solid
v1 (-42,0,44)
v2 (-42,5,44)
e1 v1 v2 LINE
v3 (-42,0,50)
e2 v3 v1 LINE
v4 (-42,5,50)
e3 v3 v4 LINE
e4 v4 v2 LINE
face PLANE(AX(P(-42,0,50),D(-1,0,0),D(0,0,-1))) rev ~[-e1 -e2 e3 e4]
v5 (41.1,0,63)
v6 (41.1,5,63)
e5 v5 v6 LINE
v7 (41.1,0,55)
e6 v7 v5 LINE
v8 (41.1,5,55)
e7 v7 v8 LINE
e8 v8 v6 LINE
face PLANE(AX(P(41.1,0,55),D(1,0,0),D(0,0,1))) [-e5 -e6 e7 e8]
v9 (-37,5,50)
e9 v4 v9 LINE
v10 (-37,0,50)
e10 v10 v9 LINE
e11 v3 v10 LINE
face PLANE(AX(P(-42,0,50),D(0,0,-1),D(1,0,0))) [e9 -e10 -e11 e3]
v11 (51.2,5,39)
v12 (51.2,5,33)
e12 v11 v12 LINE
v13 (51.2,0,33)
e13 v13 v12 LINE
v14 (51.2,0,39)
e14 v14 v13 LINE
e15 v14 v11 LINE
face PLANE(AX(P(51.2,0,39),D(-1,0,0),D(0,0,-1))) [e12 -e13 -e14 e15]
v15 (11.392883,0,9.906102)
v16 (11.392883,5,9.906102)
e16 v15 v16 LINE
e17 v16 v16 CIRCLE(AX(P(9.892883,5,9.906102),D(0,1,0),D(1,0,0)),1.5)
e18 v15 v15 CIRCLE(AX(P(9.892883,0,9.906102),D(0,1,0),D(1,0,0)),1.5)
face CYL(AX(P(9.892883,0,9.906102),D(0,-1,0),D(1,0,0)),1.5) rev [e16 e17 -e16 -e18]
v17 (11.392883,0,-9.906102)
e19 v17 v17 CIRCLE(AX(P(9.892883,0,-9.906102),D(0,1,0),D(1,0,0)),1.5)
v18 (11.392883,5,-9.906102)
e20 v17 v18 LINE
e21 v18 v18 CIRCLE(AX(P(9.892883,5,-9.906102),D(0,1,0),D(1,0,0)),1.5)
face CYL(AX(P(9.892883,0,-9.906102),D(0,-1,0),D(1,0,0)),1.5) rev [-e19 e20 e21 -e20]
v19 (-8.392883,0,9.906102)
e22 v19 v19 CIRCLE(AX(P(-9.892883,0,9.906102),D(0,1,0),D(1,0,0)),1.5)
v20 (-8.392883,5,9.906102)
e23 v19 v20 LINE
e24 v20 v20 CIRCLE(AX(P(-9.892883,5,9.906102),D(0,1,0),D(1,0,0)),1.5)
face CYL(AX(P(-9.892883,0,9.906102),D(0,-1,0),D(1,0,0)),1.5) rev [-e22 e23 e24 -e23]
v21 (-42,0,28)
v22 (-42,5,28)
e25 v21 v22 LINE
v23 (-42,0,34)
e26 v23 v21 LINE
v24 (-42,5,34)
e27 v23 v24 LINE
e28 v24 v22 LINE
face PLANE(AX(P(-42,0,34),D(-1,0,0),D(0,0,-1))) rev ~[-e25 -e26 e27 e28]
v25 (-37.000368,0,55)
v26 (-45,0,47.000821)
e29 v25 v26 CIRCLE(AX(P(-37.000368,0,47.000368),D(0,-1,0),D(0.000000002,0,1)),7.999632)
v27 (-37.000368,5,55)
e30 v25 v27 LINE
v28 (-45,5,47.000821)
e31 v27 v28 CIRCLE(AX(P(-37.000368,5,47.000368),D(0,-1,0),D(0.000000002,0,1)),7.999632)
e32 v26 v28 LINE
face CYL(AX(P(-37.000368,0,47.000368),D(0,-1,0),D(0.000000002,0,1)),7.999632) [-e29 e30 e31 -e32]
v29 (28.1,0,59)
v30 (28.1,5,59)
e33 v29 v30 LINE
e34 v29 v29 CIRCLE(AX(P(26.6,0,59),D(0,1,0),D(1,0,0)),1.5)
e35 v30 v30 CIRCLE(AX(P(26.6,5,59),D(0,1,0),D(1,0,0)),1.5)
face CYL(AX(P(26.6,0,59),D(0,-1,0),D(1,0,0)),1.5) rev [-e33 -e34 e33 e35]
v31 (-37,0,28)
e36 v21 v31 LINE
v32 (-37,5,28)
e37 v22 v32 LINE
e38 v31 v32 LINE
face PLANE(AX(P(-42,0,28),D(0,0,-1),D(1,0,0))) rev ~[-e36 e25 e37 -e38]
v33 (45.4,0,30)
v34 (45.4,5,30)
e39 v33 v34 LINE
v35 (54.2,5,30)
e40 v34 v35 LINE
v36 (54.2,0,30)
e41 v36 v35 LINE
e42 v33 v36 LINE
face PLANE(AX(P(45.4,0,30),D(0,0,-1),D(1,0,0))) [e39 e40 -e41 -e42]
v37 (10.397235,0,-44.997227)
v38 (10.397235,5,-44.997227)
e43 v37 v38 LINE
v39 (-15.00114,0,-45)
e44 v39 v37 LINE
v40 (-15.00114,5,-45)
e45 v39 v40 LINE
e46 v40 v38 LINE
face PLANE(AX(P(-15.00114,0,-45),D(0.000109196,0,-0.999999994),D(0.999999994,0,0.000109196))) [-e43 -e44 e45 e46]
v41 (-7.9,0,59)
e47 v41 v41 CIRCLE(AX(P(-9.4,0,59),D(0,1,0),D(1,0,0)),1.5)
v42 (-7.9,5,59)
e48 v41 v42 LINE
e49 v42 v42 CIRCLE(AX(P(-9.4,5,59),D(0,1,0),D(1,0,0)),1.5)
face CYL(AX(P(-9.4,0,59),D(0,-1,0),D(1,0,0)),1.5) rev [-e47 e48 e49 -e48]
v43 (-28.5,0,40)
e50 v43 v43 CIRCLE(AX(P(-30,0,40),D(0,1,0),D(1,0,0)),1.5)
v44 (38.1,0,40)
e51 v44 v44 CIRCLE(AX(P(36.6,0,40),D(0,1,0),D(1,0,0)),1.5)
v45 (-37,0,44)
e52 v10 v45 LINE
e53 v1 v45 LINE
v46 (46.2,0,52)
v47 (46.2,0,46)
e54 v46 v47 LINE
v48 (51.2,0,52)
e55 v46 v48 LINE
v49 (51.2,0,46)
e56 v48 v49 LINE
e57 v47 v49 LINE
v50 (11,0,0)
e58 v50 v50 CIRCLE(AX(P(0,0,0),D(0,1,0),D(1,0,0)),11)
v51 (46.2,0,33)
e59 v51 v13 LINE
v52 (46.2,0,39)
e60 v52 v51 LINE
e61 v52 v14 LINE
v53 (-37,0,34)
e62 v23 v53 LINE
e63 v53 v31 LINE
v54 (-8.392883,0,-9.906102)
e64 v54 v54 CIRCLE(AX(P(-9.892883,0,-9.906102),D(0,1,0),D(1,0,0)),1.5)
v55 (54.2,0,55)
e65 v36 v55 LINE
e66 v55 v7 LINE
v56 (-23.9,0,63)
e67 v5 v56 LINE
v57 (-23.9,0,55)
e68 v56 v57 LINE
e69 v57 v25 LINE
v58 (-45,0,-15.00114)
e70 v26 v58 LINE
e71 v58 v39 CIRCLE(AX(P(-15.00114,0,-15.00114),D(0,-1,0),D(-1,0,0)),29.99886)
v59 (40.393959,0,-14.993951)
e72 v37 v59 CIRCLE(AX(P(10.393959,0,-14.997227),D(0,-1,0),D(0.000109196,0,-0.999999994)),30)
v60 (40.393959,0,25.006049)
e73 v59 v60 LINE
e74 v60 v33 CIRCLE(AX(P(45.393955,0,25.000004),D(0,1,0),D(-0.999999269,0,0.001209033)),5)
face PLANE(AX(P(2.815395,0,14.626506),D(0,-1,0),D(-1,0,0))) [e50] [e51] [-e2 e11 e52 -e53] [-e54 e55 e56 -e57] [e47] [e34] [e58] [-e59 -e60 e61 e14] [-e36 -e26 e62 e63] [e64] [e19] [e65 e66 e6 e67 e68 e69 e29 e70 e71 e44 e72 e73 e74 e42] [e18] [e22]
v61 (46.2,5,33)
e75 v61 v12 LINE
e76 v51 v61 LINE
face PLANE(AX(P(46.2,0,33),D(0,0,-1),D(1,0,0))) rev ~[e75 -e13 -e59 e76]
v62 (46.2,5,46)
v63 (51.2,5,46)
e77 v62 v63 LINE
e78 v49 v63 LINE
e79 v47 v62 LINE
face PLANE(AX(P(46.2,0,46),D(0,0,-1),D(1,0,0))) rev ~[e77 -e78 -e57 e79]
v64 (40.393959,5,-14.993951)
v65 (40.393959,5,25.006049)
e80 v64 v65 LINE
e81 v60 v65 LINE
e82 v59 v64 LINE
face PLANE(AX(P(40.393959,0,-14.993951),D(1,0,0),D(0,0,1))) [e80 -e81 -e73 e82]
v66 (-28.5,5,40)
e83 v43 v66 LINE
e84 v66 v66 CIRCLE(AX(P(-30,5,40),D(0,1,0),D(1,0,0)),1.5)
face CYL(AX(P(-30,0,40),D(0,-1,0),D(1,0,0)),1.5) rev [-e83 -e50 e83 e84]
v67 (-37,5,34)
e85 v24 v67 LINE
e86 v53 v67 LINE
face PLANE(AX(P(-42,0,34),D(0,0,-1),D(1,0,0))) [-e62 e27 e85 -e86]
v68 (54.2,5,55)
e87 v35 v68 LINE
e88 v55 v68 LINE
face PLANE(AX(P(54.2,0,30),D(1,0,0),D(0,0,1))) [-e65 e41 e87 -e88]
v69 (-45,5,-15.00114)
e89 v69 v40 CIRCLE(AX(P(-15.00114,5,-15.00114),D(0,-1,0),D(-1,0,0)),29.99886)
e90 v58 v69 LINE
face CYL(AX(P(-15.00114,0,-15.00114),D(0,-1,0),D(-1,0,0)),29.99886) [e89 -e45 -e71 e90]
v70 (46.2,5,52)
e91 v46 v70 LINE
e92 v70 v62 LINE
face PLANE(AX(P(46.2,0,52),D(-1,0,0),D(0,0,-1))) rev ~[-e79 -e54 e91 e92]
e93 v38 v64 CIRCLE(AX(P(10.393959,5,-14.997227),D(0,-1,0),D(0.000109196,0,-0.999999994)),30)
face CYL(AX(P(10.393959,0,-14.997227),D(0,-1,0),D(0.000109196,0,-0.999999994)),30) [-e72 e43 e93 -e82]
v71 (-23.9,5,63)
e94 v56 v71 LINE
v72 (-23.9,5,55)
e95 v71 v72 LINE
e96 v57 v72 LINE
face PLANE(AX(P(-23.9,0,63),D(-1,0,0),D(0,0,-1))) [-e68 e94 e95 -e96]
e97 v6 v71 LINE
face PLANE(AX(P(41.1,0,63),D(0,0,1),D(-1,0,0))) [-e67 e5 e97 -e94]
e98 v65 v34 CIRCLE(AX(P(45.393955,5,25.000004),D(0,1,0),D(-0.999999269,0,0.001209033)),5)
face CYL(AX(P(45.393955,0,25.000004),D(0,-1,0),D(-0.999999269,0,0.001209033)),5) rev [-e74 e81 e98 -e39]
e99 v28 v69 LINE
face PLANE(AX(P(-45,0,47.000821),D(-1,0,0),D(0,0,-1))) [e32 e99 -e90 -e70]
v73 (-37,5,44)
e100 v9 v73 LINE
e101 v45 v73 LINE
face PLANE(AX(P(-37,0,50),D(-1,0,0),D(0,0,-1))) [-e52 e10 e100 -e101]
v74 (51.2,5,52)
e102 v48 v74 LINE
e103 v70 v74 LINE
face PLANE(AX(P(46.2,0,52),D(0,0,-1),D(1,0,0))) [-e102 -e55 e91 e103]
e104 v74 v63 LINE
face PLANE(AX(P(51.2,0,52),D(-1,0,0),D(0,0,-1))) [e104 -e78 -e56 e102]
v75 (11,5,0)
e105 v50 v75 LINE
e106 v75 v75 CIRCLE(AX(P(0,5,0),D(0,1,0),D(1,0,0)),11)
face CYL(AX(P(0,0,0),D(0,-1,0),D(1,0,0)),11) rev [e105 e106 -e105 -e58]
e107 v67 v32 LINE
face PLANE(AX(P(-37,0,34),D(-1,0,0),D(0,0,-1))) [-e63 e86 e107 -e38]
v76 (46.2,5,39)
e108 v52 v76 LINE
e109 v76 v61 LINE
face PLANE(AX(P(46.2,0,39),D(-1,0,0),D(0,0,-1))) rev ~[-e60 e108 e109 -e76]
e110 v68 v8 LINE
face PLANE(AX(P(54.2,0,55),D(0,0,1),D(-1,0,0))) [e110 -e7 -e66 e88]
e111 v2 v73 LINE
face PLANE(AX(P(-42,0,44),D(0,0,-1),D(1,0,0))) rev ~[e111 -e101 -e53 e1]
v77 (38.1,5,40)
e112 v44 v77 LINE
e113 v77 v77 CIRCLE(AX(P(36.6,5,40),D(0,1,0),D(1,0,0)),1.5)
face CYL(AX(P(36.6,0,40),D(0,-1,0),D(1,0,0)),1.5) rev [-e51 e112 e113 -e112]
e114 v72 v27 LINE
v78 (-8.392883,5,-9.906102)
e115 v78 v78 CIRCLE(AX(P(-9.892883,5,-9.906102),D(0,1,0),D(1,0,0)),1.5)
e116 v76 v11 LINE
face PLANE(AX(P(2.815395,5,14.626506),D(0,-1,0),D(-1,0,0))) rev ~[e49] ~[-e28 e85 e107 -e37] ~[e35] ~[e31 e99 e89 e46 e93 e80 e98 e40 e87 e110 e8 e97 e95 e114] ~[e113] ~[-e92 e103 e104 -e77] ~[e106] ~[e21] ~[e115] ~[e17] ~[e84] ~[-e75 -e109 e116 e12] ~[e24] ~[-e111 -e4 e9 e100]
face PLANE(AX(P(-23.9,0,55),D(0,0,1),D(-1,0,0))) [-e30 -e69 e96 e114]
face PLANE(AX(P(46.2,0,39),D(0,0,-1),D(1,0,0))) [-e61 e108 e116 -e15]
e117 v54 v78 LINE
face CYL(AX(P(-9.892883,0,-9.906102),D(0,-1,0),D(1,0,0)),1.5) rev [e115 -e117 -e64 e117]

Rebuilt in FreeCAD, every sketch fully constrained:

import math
import FreeCAD as App
import Part
import Sketcher

doc = App.newDocument("Part")
params = doc.addObject("Spreadsheet::Sheet", "Params")
for row, (alias, value) in enumerate([
    ("sketch1_diameter", "3 mm"),
    ("sketch1_diameter2", "22 mm"),
    ("sketch1_radius", "30 mm"),
    ("sketch1_radius2", "5 mm"),
    ("sketch1_width", "65 mm"),
    ("pad1_length", "5 mm"),
], start=1):
    params.set(f"A{row}", alias)
    params.set(f"B{row}", "=" + value)
    params.setAlias(f"B{row}", alias)

body = doc.addObject("PartDesign::Body", "Body")

sketch1 = body.newObject("Sketcher::SketchObject", "Sketch")
sketch1.AttachmentSupport = (doc.getObject("XZ_Plane"), [""])
sketch1.MapMode = "FlatFace"
sketch1.addGeometry([
    Part.LineSegment(App.Vector(40.4, 25, 0), App.Vector(40.4, -15, 0)),
    Part.ArcOfCircle(Part.Circle(App.Vector(10.4, -15, 0), App.Vector(0, 0, 1), 30), math.radians(-90), math.radians(0)),
    Part.LineSegment(App.Vector(10.4, -45, 0), App.Vector(-15, -45, 0)),
    Part.ArcOfCircle(Part.Circle(App.Vector(-15, -15, 0), App.Vector(0, 0, 1), 30), math.radians(180), math.radians(270)),
    Part.LineSegment(App.Vector(-45, -15, 0), App.Vector(-45, 47, 0)),
    Part.ArcOfCircle(Part.Circle(App.Vector(-37, 47, 0), App.Vector(0, 0, 1), 8), math.radians(90), math.radians(180)),
    Part.LineSegment(App.Vector(-37, 55, 0), App.Vector(-23.9, 55, 0)),
    Part.LineSegment(App.Vector(-23.9, 55, 0), App.Vector(-23.9, 63, 0)),
    Part.LineSegment(App.Vector(-23.9, 63, 0), App.Vector(41.1, 63, 0)),
    Part.LineSegment(App.Vector(41.1, 63, 0), App.Vector(41.1, 55, 0)),
    Part.LineSegment(App.Vector(41.1, 55, 0), App.Vector(54.2, 55, 0)),
    Part.LineSegment(App.Vector(54.2, 55, 0), App.Vector(54.2, 30, 0)),
    Part.LineSegment(App.Vector(54.2, 30, 0), App.Vector(45.4, 30, 0)),
    Part.ArcOfCircle(Part.Circle(App.Vector(45.4, 25, 0), App.Vector(0, 0, 1), 5), math.radians(90), math.radians(180)),
    Part.LineSegment(App.Vector(46.2, 52, 0), App.Vector(46.2, 46, 0)),
    Part.LineSegment(App.Vector(46.2, 46, 0), App.Vector(51.2, 46, 0)),
    Part.LineSegment(App.Vector(51.2, 46, 0), App.Vector(51.2, 52, 0)),
    Part.LineSegment(App.Vector(51.2, 52, 0), App.Vector(46.2, 52, 0)),
    Part.Circle(App.Vector(26.6, 59, 0), App.Vector(0, 0, 1), 1.5),
    Part.LineSegment(App.Vector(46.2, 39, 0), App.Vector(46.2, 33, 0)),
    Part.LineSegment(App.Vector(46.2, 33, 0), App.Vector(51.2, 33, 0)),
    Part.LineSegment(App.Vector(51.2, 33, 0), App.Vector(51.2, 39, 0)),
    Part.LineSegment(App.Vector(51.2, 39, 0), App.Vector(46.2, 39, 0)),
    Part.Circle(App.Vector(36.6, 40, 0), App.Vector(0, 0, 1), 1.5),
    Part.Circle(App.Vector(-9.4, 59, 0), App.Vector(0, 0, 1), 1.5),
    Part.LineSegment(App.Vector(-42, 50, 0), App.Vector(-42, 44, 0)),
    Part.LineSegment(App.Vector(-42, 44, 0), App.Vector(-37, 44, 0)),
    Part.LineSegment(App.Vector(-37, 44, 0), App.Vector(-37, 50, 0)),
    Part.LineSegment(App.Vector(-37, 50, 0), App.Vector(-42, 50, 0)),
    Part.Circle(App.Vector(-30, 40, 0), App.Vector(0, 0, 1), 1.5),
    Part.LineSegment(App.Vector(-42, 34, 0), App.Vector(-42, 28, 0)),
    Part.LineSegment(App.Vector(-42, 28, 0), App.Vector(-37, 28, 0)),
    Part.LineSegment(App.Vector(-37, 28, 0), App.Vector(-37, 34, 0)),
    Part.LineSegment(App.Vector(-37, 34, 0), App.Vector(-42, 34, 0)),
    Part.Circle(App.Vector(9.9, 9.9, 0), App.Vector(0, 0, 1), 1.5),
    Part.Circle(App.Vector(9.9, -9.9, 0), App.Vector(0, 0, 1), 1.5),
    Part.Circle(App.Vector(-9.9, 9.9, 0), App.Vector(0, 0, 1), 1.5),
    Part.Circle(App.Vector(0, 0, 0), App.Vector(0, 0, 1), 11),
    Part.Circle(App.Vector(-9.9, -9.9, 0), App.Vector(0, 0, 1), 1.5),
], False)
sketch1.addConstraint([
    Sketcher.Constraint("Coincident", 0, 2, 1, 2),
    Sketcher.Constraint("Tangent", 1, 1, 2, 1),
    Sketcher.Constraint("Coincident", 2, 2, 3, 2),
    Sketcher.Constraint("Tangent", 3, 1, 4, 1),
    Sketcher.Constraint("Coincident", 4, 2, 5, 2),
    Sketcher.Constraint("Tangent", 5, 1, 6, 1),
    Sketcher.Constraint("Coincident", 6, 2, 7, 1),
    Sketcher.Constraint("Coincident", 7, 2, 8, 1),
    Sketcher.Constraint("Coincident", 8, 2, 9, 1),
    Sketcher.Constraint("Coincident", 9, 2, 10, 1),
    Sketcher.Constraint("Coincident", 10, 2, 11, 1),
    Sketcher.Constraint("Coincident", 11, 2, 12, 1),
    Sketcher.Constraint("Coincident", 12, 2, 13, 1),
    Sketcher.Constraint("Coincident", 13, 2, 0, 1),
    Sketcher.Constraint("Coincident", 14, 2, 15, 1),
    Sketcher.Constraint("Coincident", 15, 2, 16, 1),
    Sketcher.Constraint("Coincident", 16, 2, 17, 1),
    Sketcher.Constraint("Coincident", 17, 2, 14, 1),
    Sketcher.Constraint("Coincident", 19, 2, 20, 1),
    Sketcher.Constraint("Coincident", 20, 2, 21, 1),
    Sketcher.Constraint("Coincident", 21, 2, 22, 1),
    Sketcher.Constraint("Coincident", 22, 2, 19, 1),
    Sketcher.Constraint("Coincident", 25, 2, 26, 1),
    Sketcher.Constraint("Coincident", 26, 2, 27, 1),
    Sketcher.Constraint("Coincident", 27, 2, 28, 1),
    Sketcher.Constraint("Coincident", 28, 2, 25, 1),
    Sketcher.Constraint("Coincident", 30, 2, 31, 1),
    Sketcher.Constraint("Coincident", 31, 2, 32, 1),
    Sketcher.Constraint("Coincident", 32, 2, 33, 1),
    Sketcher.Constraint("Coincident", 33, 2, 30, 1),
    Sketcher.Constraint("Vertical", 0),
    Sketcher.Constraint("Vertical", 4),
    Sketcher.Constraint("Horizontal", 6),
    Sketcher.Constraint("Vertical", 7),
    Sketcher.Constraint("Horizontal", 8),
    Sketcher.Constraint("Vertical", 9),
    Sketcher.Constraint("Horizontal", 10),
    Sketcher.Constraint("Vertical", 11),
    Sketcher.Constraint("Horizontal", 12),
    Sketcher.Constraint("Vertical", 14),
    Sketcher.Constraint("Horizontal", 15),
    Sketcher.Constraint("Vertical", 16),
    Sketcher.Constraint("Horizontal", 17),
    Sketcher.Constraint("Vertical", 19),
    Sketcher.Constraint("Horizontal", 20),
    Sketcher.Constraint("Vertical", 21),
    Sketcher.Constraint("Horizontal", 22),
    Sketcher.Constraint("Vertical", 25),
    Sketcher.Constraint("Horizontal", 26),
    Sketcher.Constraint("Vertical", 27),
    Sketcher.Constraint("Horizontal", 28),
    Sketcher.Constraint("Vertical", 30),
    Sketcher.Constraint("Horizontal", 31),
    Sketcher.Constraint("Vertical", 32),
    Sketcher.Constraint("Horizontal", 33),
    Sketcher.Constraint("Coincident", 37, 3, -1, 1),
    Sketcher.Constraint("Equal", 18, 23),
    Sketcher.Constraint("Equal", 23, 24),
    Sketcher.Constraint("Equal", 24, 29),
    Sketcher.Constraint("Equal", 29, 34),
    Sketcher.Constraint("Equal", 34, 35),
    Sketcher.Constraint("Equal", 35, 36),
    Sketcher.Constraint("Equal", 36, 38),
    Sketcher.Constraint("Symmetric", 35, 3, 36, 3, -1, 1),
    Sketcher.Constraint("Symmetric", 34, 3, 38, 3, -1, 1),
    Sketcher.Constraint("Symmetric", 34, 3, 36, 3, -2),
    Sketcher.Constraint("Horizontal", 18, 3, 24, 3),
    Sketcher.Constraint("Horizontal", 23, 3, 29, 3),
    Sketcher.Constraint("Horizontal", 6, 2, 9, 2),
    Sketcher.Constraint("Vertical", 3, 3, 2, 2),
    Sketcher.Constraint("Vertical", 17, 2, 19, 2),
    Sketcher.Constraint("Vertical", 16, 2, 20, 2),
    Sketcher.Constraint("Vertical", 28, 2, 30, 2),
    Sketcher.Constraint("Vertical", 27, 2, 31, 2),
    Sketcher.Constraint("Equal", 22, 26),
    Sketcher.Constraint("Equal", 16, 19),
    Sketcher.Constraint("Equal", 21, 25),
    Sketcher.Constraint("Equal", 27, 30),
    Sketcher.Constraint("Diameter", 18, 3.0),
    Sketcher.Constraint("Diameter", 37, 22.0),
    Sketcher.Constraint("Radius", 1, 30.0),
    Sketcher.Constraint("Radius", 13, 5.0),
    Sketcher.Constraint("DistanceX", 8, 1, 8, 2, 65.0),
    Sketcher.Constraint("DistanceX", 15, 1, 15, 2, 5.0),
    Sketcher.Constraint("DistanceY", 0, 2, 0, 1, 40.0),
    Sketcher.Constraint("DistanceY", 7, 1, 7, 2, 8.0),
    Sketcher.Constraint("DistanceY", 11, 2, 11, 1, 25.0),
    Sketcher.Constraint("DistanceY", 14, 2, 14, 1, 6.0),
    Sketcher.Constraint("DistanceX", 10, 1, 10, 2, 13.1),
    Sketcher.Constraint("DistanceX", 12, 2, 12, 1, 8.8),
    Sketcher.Constraint("DistanceY", -1, 1, 18, 3, 59.0),
    Sketcher.Constraint("DistanceY", -1, 1, 23, 3, 40.0),
    Sketcher.Constraint("DistanceX", 29, 3, -1, 1, 30.0),
    Sketcher.Constraint("DistanceY", 2, 2, -1, 1, 45.0),
    Sketcher.Constraint("DistanceX", 3, 1, -1, 1, 45.0),
    Sketcher.Constraint("DistanceY", -1, 1, 5, 1, 55.0),
    Sketcher.Constraint("DistanceY", -1, 1, 14, 2, 46.0),
    Sketcher.Constraint("DistanceY", -1, 1, 19, 2, 33.0),
    Sketcher.Constraint("DistanceX", 25, 2, -1, 1, 42.0),
    Sketcher.Constraint("DistanceY", -1, 1, 25, 2, 44.0),
    Sketcher.Constraint("DistanceY", -1, 1, 30, 2, 28.0),
    Sketcher.Constraint("DistanceX", 18, 3, 23, 3, 10.0),
    Sketcher.Constraint("DistanceX", 24, 3, 18, 3, 36.0),
    Sketcher.Constraint("DistanceX", 14, 2, 10, 2, 8.0),
    Sketcher.Constraint("DistanceX", -1, 1, 18, 3, 26.6),
    Sketcher.Constraint("DistanceX", 6, 2, -1, 1, 23.9),
    Sketcher.Constraint("Radius", 3, 29.99886),
    Sketcher.Constraint("Radius", 5, 7.999632),
    Sketcher.Constraint("DistanceY", 4, 1, 4, 2, 62.001961),
    Sketcher.Constraint("DistanceX", 3, 3, 1, 3, 25.395099),
    Sketcher.Constraint("DistanceY", 34, 3, 13, 3, 15.093902),
    Sketcher.Constraint("DistanceY", 0, 2, -1, 1, 14.993951),
    Sketcher.Constraint("DistanceY", 1, 3, 13, 3, 39.997231),
    Sketcher.Constraint("DistanceX", 34, 3, 13, 3, 35.501071),
])
sketch1.setExpression("Constraints[78]", "Params.sketch1_diameter")
sketch1.setExpression("Constraints[79]", "Params.sketch1_diameter2")
sketch1.setExpression("Constraints[80]", "Params.sketch1_radius")
sketch1.setExpression("Constraints[81]", "Params.sketch1_radius2")
sketch1.setExpression("Constraints[82]", "Params.sketch1_width")
pad1 = body.newObject("PartDesign::Pad", "Pad")
pad1.Profile = sketch1
pad1.setExpression("Length", "Params.pad1_length")
pad1.Reversed = True

doc.recompute()
